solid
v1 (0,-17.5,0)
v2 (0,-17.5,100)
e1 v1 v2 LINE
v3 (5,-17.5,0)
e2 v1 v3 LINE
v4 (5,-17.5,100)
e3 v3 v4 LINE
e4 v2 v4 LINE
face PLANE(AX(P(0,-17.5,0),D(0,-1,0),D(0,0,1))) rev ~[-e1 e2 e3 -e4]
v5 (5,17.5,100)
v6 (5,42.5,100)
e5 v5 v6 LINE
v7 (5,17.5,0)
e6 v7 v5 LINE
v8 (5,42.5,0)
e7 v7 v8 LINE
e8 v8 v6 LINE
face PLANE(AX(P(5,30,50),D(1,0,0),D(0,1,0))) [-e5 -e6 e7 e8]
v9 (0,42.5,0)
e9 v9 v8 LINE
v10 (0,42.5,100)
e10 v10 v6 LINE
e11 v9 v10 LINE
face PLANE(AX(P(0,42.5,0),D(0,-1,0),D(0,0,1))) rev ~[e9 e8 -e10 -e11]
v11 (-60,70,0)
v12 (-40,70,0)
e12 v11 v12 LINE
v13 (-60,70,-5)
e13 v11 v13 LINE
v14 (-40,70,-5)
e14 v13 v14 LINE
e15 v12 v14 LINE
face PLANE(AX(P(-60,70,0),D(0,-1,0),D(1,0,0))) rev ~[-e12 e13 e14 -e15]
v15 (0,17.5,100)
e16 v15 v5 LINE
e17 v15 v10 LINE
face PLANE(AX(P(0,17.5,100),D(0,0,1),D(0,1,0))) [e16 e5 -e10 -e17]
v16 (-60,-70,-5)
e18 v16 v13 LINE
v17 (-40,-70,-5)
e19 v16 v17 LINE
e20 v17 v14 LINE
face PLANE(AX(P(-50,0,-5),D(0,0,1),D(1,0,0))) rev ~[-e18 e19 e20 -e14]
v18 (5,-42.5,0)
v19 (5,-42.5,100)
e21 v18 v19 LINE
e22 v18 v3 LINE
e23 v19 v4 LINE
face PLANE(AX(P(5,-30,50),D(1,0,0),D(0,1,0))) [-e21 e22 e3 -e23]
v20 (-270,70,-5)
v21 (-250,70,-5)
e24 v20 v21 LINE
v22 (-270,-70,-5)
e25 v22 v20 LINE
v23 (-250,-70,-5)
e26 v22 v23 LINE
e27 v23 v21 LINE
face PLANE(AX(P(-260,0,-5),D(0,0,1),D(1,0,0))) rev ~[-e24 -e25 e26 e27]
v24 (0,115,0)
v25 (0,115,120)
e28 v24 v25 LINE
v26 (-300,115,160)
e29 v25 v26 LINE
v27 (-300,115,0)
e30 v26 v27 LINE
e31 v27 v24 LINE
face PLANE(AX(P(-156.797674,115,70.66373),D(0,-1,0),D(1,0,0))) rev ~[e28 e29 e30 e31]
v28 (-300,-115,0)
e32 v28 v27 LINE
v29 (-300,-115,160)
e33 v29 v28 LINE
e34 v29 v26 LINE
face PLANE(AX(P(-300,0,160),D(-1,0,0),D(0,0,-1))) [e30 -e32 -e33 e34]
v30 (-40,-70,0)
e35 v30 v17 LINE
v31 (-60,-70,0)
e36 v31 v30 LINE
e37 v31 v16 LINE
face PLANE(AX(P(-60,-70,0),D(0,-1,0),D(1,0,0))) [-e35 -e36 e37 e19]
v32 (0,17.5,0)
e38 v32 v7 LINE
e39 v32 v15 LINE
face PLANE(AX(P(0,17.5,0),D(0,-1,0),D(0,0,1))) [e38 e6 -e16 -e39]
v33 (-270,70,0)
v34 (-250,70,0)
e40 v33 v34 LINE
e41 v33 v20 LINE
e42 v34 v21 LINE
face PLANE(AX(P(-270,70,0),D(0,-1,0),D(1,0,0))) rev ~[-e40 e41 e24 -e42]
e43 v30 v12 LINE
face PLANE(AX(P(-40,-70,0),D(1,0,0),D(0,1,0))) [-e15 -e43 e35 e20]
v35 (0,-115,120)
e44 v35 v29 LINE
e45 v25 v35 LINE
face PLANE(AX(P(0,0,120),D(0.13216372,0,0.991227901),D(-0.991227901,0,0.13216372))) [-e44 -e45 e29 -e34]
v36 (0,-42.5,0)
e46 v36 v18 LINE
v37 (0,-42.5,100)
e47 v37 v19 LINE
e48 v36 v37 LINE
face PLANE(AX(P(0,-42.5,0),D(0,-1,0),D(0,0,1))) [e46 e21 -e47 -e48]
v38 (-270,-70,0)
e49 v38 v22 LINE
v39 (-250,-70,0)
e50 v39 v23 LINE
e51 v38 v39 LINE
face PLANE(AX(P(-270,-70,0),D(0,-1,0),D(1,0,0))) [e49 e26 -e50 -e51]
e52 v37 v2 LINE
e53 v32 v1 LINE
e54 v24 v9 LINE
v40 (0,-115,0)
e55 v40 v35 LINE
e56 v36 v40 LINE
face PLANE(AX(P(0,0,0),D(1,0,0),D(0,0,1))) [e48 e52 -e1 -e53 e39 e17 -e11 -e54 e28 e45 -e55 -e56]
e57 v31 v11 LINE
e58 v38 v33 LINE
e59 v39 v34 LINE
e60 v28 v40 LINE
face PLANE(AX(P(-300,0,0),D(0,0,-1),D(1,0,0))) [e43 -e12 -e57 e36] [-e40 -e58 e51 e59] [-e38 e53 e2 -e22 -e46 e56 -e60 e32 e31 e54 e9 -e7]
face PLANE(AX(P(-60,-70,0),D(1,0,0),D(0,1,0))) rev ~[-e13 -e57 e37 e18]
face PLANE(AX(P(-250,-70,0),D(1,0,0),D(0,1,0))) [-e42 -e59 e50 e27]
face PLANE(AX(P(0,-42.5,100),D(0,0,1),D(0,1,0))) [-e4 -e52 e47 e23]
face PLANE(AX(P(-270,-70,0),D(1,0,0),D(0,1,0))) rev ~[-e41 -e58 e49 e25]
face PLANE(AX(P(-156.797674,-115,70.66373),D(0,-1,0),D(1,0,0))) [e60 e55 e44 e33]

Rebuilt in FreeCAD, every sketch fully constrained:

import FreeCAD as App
import Part
import Sketcher
from FreeCAD import Vector

doc = App.newDocument("Part")
body = doc.addObject("PartDesign::Body", "Body")

# Sketch on XZ plane
sketch1 = body.newObject("Sketcher::SketchObject", "Sketch")
sketch1.AttachmentSupport = (doc.getObject("XZ_Plane"), [""])
sketch1.MapMode = "FlatFace"
sketch1.addGeometry(Part.LineSegment(Vector(-300, 0, 0), Vector(0, 0, 0)), False)
sketch1.addGeometry(Part.LineSegment(Vector(0, 0, 0), Vector(0, 120, 0)), False)
sketch1.addGeometry(Part.LineSegment(Vector(0, 120, 0), Vector(-300, 160, 0)), False)
sketch1.addGeometry(Part.LineSegment(Vector(-300, 160, 0), Vector(-300, 0, 0)), False)
sketch1.addConstraint(Sketcher.Constraint("Coincident", 0, 2, 1, 1))
sketch1.addConstraint(Sketcher.Constraint("Coincident", 1, 2, 2, 1))
sketch1.addConstraint(Sketcher.Constraint("Coincident", 2, 2, 3, 1))
sketch1.addConstraint(Sketcher.Constraint("Coincident", 3, 2, 0, 1))
sketch1.addConstraint(Sketcher.Constraint("Horizontal", 0))
sketch1.addConstraint(Sketcher.Constraint("Vertical", 1))
sketch1.addConstraint(Sketcher.Constraint("Vertical", 3))
sketch1.addConstraint(Sketcher.Constraint("Coincident", 0, 2, -1, 1))
sketch1.addConstraint(Sketcher.Constraint("DistanceX", 0, 1, 0, 2, 300.0))
sketch1.addConstraint(Sketcher.Constraint("DistanceY", 1, 1, 1, 2, 120.0))
sketch1.addConstraint(Sketcher.Constraint("DistanceY", 3, 2, 3, 1, 160.0))
pad1 = body.newObject("PartDesign::Pad", "Pad")
pad1.Profile = sketch1
pad1.Length = 230
pad1.Midplane = True

# Sketch on XY plane
sketch2 = body.newObject("Sketcher::SketchObject", "Sketch001")
sketch2.AttachmentSupport = (doc.getObject("XY_Plane"), [""])
sketch2.MapMode = "FlatFace"
sketch2.addGeometry(Part.LineSegment(Vector(-270, 70, 0), Vector(-270, -70, 0)), False)
sketch2.addGeometry(Part.LineSegment(Vector(-270, -70, 0), Vector(-250, -70, 0)), False)
sketch2.addGeometry(Part.LineSegment(Vector(-250, -70, 0), Vector(-250, 70, 0)), False)
sketch2.addGeometry(Part.LineSegment(Vector(-250, 70, 0), Vector(-270, 70, 0)), False)
sketch2.addGeometry(Part.LineSegment(Vector(-60, 70, 0), Vector(-60, -70, 0)), False)
sketch2.addGeometry(Part.LineSegment(Vector(-60, -70, 0), Vector(-40, -70, 0)), False)
sketch2.addGeometry(Part.LineSegment(Vector(-40, -70, 0), Vector(-40, 70, 0)), False)
sketch2.addGeometry(Part.LineSegment(Vector(-40, 70, 0), Vector(-60, 70, 0)), False)
sketch2.addConstraint(Sketcher.Constraint("Coincident", 0, 2, 1, 1))
sketch2.addConstraint(Sketcher.Constraint("Coincident", 1, 2, 2, 1))
sketch2.addConstraint(Sketcher.Constraint("Coincident", 2, 2, 3, 1))
sketch2.addConstraint(Sketcher.Constraint("Coincident", 3, 2, 0, 1))
sketch2.addConstraint(Sketcher.Constraint("Coincident", 4, 2, 5, 1))
sketch2.addConstraint(Sketcher.Constraint("Coincident", 5, 2, 6, 1))
sketch2.addConstraint(Sketcher.Constraint("Coincident", 6, 2, 7, 1))
sketch2.addConstraint(Sketcher.Constraint("Coincident", 7, 2, 4, 1))
sketch2.addConstraint(Sketcher.Constraint("Vertical", 0))
sketch2.addConstraint(Sketcher.Constraint("Horizontal", 1))
sketch2.addConstraint(Sketcher.Constraint("Vertical", 2))
sketch2.addConstraint(Sketcher.Constraint("Horizontal", 3))
sketch2.addConstraint(Sketcher.Constraint("Vertical", 4))
sketch2.addConstraint(Sketcher.Constraint("Horizontal", 5))
sketch2.addConstraint(Sketcher.Constraint("Vertical", 6))
sketch2.addConstraint(Sketcher.Constraint("Horizontal", 7))
sketch2.addConstraint(Sketcher.Constraint("Horizontal", 1, 2, 4, 2))
sketch2.addConstraint(Sketcher.Constraint("Horizontal", 3, 2, 6, 2))
sketch2.addConstraint(Sketcher.Constraint("Equal", 3, 5))
sketch2.addConstraint(Sketcher.Constraint("DistanceX", 1, 1, 1, 2, 20.0))
sketch2.addConstraint(Sketcher.Constraint("DistanceY", 0, 2, 0, 1, 140.0))
sketch2.addConstraint(Sketcher.Constraint("DistanceX", 0, 2, -1, 1, 270.0))
sketch2.addConstraint(Sketcher.Constraint("DistanceY", 0, 2, -1, 1, 70.0))
sketch2.addConstraint(Sketcher.Constraint("DistanceX", 4, 2, -1, 1, 60.0))
pad2 = body.newObject("PartDesign::Pad", "Pad001")
pad2.Profile = sketch2
pad2.Length = 5
pad2.Reversed = True

# Sketch on YZ plane
sketch3 = body.newObject("Sketcher::SketchObject", "Sketch002")
sketch3.AttachmentSupport = (doc.getObject("YZ_Plane"), [""])
sketch3.MapMode = "FlatFace"
sketch3.addGeometry(Part.LineSegment(Vector(18, 100, 0), Vector(18, 0, 0)), False)
sketch3.addGeometry(Part.LineSegment(Vector(18, 0, 0), Vector(42, 0, 0)), False)
sketch3.addGeometry(Part.LineSegment(Vector(42, 0, 0), Vector(42, 100, 0)), False)
sketch3.addGeometry(Part.LineSegment(Vector(42, 100, 0), Vector(18, 100, 0)), False)
sketch3.addGeometry(Part.LineSegment(Vector(-42, 100, 0), Vector(-42, 0, 0)), False)
sketch3.addGeometry(Part.LineSegment(Vector(-42, 0, 0), Vector(-18, 0, 0)), False)
sketch3.addGeometry(Part.LineSegment(Vector(-18, 0, 0), Vector(-18, 100, 0)), False)
sketch3.addGeometry(Part.LineSegment(Vector(-18, 100, 0), Vector(-42, 100, 0)), False)
sketch3.addConstraint(Sketcher.Constraint("Coincident", 0, 2, 1, 1))
sketch3.addConstraint(Sketcher.Constraint("Coincident", 1, 2, 2, 1))
sketch3.addConstraint(Sketcher.Constraint("Coincident", 2, 2, 3, 1))
sketch3.addConstraint(Sketcher.Constraint("Coincident", 3, 2, 0, 1))
sketch3.addConstraint(Sketcher.Constraint("Coincident", 4, 2, 5, 1))
sketch3.addConstraint(Sketcher.Constraint("Coincident", 5, 2, 6, 1))
sketch3.addConstraint(Sketcher.Constraint("Coincident", 6, 2, 7, 1))
sketch3.addConstraint(Sketcher.Constraint("Coincident", 7, 2, 4, 1))
sketch3.addConstraint(Sketcher.Constraint("Vertical", 0))
sketch3.addConstraint(Sketcher.Constraint("Horizontal", 1))
sketch3.addConstraint(Sketcher.Constraint("Vertical", 2))
sketch3.addConstraint(Sketcher.Constraint("Horizontal", 3))
sketch3.addConstraint(Sketcher.Constraint("Vertical", 4))
sketch3.addConstraint(Sketcher.Constraint("Horizontal", 5))
sketch3.addConstraint(Sketcher.Constraint("Vertical", 6))
sketch3.addConstraint(Sketcher.Constraint("Horizontal", 7))
sketch3.addConstraint(Sketcher.Constraint("Symmetric", 1, 2, 4, 2, -1, 1))
sketch3.addConstraint(Sketcher.Constraint("Symmetric", 0, 2, 5, 2, -2))
sketch3.addConstraint(Sketcher.Constraint("Horizontal", 3, 2, 6, 2))
sketch3.addConstraint(Sketcher.Constraint("DistanceX", 1, 1, 1, 2, 25.0))
sketch3.addConstraint(Sketcher.Constraint("DistanceY", 0, 2, 0, 1, 100.0))
sketch3.addConstraint(Sketcher.Constraint("DistanceX", 4, 2, 0, 2, 60.0))
pad3 = body.newObject("PartDesign::Pad", "Pad002")
pad3.Profile = sketch3
pad3.Length = 5

doc.recompute()
